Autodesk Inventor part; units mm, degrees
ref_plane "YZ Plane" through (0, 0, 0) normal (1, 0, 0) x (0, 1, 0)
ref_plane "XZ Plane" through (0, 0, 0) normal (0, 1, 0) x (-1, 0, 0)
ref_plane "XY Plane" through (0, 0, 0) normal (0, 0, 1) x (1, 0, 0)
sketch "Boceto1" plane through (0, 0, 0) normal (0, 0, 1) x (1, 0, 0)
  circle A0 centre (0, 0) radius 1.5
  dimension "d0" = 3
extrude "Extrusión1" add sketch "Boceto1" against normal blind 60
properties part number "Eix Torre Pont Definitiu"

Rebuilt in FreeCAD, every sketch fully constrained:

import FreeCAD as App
import Part
import Sketcher

V = App.Vector
Q = App.Units.Quantity

doc = App.newDocument("Part")
body = doc.addObject("PartDesign::Body", "Body")

# Sketch on XY plane
sketch1 = body.newObject("Sketcher::SketchObject", "Sketch")
sketch1.AttachmentSupport = (doc.getObject("XY_Plane"), [""])
sketch1.MapMode = "FlatFace"
sketch1.addGeometry(Part.Circle(V(0, 0, 0), V(0, 0, 1), 1.5), False)
sketch1.addConstraint([
    Sketcher.Constraint("Coincident", 0, 3, -1, 1),
    Sketcher.Constraint("Diameter", 0, Q("3 mm")),
])
pad1 = body.newObject("PartDesign::Pad", "Pad")
pad1.Profile = sketch1
pad1.Length = 60
pad1.Reversed = True

doc.recompute()
